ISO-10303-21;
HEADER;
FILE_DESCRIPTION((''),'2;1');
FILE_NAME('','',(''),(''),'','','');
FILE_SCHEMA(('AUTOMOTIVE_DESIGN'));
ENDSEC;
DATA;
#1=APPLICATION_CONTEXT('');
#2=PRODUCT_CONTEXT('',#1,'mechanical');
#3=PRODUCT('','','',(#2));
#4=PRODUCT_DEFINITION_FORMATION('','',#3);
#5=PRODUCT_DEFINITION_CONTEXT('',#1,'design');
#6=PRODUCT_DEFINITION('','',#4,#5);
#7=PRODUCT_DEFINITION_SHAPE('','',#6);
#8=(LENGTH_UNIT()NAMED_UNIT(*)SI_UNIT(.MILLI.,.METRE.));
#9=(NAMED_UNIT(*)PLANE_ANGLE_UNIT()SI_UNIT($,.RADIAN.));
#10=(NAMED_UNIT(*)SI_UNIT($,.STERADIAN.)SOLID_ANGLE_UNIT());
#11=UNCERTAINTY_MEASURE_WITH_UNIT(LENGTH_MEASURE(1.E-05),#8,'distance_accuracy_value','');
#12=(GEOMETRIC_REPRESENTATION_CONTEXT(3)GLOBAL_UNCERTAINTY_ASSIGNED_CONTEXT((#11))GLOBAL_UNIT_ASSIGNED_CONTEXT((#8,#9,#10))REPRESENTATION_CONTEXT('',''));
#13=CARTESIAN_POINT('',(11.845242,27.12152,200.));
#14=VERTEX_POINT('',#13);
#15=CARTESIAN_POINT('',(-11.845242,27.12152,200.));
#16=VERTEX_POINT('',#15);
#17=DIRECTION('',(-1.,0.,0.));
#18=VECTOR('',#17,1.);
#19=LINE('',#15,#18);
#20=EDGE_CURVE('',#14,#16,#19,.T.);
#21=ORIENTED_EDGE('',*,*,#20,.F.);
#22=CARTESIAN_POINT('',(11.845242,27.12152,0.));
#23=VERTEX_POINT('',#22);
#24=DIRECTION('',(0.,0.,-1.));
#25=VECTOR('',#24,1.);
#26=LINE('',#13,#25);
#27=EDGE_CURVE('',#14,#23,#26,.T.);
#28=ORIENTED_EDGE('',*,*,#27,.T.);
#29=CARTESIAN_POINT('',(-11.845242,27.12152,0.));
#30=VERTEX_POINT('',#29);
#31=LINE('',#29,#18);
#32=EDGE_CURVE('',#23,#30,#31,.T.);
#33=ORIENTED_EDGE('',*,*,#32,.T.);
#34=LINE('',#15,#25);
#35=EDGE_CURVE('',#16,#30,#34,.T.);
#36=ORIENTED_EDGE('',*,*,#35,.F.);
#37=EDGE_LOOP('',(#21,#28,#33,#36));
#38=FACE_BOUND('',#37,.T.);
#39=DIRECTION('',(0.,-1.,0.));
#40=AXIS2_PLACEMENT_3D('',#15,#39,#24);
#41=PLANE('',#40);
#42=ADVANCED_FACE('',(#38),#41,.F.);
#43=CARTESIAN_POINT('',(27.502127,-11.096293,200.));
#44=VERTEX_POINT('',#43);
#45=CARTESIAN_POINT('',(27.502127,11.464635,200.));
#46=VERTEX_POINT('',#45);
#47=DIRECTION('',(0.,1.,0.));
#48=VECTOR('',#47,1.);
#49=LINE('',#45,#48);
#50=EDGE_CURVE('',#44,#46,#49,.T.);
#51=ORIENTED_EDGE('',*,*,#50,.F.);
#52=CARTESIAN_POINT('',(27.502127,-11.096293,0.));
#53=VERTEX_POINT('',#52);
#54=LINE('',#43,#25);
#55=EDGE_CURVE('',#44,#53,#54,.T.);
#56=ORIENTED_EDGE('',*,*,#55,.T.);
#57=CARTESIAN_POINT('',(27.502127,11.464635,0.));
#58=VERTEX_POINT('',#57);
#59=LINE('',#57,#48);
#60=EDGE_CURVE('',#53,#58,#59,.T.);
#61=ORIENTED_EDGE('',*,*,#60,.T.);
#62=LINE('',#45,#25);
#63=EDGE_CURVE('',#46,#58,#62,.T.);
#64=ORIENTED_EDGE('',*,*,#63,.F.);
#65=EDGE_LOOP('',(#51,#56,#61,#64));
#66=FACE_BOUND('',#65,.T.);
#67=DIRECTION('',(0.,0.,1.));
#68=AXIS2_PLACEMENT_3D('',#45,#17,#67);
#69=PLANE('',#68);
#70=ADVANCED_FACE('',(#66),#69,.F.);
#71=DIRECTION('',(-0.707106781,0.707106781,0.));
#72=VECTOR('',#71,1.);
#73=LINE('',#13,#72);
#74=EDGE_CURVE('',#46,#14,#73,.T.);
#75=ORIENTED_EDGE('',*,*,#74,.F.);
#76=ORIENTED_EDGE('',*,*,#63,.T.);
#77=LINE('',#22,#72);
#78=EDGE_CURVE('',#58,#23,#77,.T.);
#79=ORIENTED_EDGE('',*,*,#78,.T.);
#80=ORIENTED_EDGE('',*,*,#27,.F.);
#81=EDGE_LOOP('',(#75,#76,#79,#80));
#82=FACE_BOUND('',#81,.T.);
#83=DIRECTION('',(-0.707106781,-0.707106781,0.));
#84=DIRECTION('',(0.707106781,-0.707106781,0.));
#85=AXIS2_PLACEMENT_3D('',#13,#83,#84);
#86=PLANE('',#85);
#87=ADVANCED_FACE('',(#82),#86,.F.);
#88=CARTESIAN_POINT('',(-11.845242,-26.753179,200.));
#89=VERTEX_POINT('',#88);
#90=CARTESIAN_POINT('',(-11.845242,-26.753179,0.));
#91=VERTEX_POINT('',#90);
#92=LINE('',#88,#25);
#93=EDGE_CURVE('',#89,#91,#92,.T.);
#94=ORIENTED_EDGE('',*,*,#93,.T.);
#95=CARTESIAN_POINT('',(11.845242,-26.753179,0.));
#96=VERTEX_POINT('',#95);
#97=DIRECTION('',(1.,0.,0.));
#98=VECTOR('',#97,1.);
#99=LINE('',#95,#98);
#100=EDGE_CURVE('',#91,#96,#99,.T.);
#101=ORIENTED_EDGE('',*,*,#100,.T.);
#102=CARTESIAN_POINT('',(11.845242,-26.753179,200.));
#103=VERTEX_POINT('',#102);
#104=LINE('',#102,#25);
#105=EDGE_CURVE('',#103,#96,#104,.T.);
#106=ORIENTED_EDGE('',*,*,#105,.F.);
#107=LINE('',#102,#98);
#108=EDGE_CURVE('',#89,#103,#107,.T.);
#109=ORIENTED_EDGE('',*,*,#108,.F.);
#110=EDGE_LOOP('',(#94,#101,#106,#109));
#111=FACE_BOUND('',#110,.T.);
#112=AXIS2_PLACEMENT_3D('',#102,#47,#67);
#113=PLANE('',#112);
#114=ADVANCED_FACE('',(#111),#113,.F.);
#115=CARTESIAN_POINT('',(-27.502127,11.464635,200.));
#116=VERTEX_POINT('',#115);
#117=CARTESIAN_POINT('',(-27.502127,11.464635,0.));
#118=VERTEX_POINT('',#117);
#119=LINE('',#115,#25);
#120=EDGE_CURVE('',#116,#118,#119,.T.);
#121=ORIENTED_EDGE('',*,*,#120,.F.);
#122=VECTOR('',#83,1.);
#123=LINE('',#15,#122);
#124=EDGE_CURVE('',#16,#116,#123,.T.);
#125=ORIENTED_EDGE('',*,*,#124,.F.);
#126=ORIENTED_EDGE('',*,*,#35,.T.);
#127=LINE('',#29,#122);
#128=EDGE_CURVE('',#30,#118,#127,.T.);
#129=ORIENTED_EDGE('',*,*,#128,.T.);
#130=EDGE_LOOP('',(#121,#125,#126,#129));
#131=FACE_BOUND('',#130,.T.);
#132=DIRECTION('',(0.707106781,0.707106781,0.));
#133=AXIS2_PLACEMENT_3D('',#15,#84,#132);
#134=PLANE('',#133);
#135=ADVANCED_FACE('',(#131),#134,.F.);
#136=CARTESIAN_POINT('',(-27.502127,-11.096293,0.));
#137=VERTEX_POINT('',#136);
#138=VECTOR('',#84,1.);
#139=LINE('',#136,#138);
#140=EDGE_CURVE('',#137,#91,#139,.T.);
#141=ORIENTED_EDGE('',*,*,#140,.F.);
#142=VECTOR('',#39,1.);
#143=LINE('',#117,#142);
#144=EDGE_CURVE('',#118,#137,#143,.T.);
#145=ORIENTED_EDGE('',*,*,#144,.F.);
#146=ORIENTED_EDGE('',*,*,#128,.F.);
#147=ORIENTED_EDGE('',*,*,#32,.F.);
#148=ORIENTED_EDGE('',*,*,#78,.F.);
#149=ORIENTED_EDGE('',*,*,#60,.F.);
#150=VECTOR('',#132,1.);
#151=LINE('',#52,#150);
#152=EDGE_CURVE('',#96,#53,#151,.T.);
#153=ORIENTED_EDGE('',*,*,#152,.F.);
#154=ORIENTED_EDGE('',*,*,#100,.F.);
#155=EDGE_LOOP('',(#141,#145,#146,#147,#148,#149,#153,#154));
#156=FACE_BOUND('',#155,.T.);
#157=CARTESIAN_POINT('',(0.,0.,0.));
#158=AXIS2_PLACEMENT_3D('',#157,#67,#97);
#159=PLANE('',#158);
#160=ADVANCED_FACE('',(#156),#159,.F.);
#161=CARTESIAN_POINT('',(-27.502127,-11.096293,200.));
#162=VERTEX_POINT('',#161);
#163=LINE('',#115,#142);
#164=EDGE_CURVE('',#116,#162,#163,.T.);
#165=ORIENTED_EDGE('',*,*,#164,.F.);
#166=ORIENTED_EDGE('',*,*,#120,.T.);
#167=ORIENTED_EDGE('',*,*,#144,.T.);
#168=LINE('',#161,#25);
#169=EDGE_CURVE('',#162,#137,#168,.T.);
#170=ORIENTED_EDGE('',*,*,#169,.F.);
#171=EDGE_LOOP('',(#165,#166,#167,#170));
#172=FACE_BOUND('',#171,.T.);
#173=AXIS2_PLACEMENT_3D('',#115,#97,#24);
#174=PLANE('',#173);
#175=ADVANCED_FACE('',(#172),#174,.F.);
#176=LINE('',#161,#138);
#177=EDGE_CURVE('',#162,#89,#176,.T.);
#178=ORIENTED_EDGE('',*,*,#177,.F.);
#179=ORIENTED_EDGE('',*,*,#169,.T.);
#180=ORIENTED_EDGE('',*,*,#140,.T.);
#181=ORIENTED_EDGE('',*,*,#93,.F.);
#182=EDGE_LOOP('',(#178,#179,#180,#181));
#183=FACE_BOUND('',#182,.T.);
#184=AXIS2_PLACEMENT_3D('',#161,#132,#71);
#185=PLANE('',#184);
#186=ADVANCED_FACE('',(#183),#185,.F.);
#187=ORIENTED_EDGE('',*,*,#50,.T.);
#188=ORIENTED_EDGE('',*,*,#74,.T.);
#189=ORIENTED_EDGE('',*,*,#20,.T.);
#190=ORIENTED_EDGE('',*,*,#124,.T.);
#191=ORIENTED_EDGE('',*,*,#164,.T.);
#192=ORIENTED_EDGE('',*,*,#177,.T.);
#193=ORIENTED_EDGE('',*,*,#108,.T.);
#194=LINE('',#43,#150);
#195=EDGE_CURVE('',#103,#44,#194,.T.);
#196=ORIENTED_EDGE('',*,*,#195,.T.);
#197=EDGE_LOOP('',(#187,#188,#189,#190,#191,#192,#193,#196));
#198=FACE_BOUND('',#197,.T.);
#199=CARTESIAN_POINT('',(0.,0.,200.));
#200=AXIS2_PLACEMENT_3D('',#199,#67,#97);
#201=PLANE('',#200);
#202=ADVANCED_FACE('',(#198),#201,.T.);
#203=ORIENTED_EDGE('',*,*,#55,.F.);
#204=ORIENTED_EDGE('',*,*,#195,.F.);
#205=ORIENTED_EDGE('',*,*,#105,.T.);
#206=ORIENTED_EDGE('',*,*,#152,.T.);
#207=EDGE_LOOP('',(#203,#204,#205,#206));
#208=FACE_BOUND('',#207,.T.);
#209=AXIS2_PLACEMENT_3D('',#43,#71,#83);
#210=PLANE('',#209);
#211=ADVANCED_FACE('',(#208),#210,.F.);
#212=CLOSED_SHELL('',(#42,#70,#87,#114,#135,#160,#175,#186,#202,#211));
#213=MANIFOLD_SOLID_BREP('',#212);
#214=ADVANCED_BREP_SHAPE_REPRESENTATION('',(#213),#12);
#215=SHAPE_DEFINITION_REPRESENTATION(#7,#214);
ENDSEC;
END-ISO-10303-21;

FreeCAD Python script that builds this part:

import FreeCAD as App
import Part
import Sketcher

V = App.Vector
Q = App.Units.Quantity

doc = App.newDocument("Part")
params = doc.addObject("Spreadsheet::Sheet", "Params")
for row, (alias, value) in enumerate([
    ("pad1_length", "200 mm"),
], start=1):
    params.set(f"A{row}", alias)
    params.set(f"B{row}", "=" + value)
    params.setAlias(f"B{row}", alias)

body = doc.addObject("PartDesign::Body", "Body")

sketch1 = body.newObject("Sketcher::SketchObject", "Sketch")
sketch1.AttachmentSupport = (doc.getObject("XY_Plane"), [""])
sketch1.MapMode = "FlatFace"
sketch1.addGeometry([
    Part.LineSegment(V(12, 27, 0), V(-12, 27, 0)),
    Part.LineSegment(V(-12, 27, 0), V(-28, 11, 0)),
    Part.LineSegment(V(-28, 11, 0), V(-28, -11, 0)),
    Part.LineSegment(V(-28, -11, 0), V(-12, -27, 0)),
    Part.LineSegment(V(-12, -27, 0), V(12, -27, 0)),
    Part.LineSegment(V(12, -27, 0), V(28, -11, 0)),
    Part.LineSegment(V(28, -11, 0), V(28, 11, 0)),
    Part.LineSegment(V(28, 11, 0), V(12, 27, 0)),
], False)
sketch1.addConstraint([
    Sketcher.Constraint("Coincident", 0, 2, 1, 1),
    Sketcher.Constraint("Coincident", 1, 2, 2, 1),
    Sketcher.Constraint("Coincident", 2, 2, 3, 1),
    Sketcher.Constraint("Coincident", 3, 2, 4, 1),
    Sketcher.Constraint("Coincident", 4, 2, 5, 1),
    Sketcher.Constraint("Coincident", 5, 2, 6, 1),
    Sketcher.Constraint("Coincident", 6, 2, 7, 1),
    Sketcher.Constraint("Coincident", 7, 2, 0, 1),
    Sketcher.Constraint("Horizontal", 0),
    Sketcher.Constraint("Vertical", 2),
    Sketcher.Constraint("Horizontal", 4),
    Sketcher.Constraint("Vertical", 6),
    Sketcher.Constraint("Symmetric", 2, 2, 5, 2, -2),
    Sketcher.Constraint("Perpendicular", 1, 3),
    Sketcher.Constraint("Perpendicular", 3, 5),
    Sketcher.Constraint("Perpendicular", 5, 7),
    Sketcher.Constraint("Horizontal", 1, 2, 6, 2),
    Sketcher.Constraint("Vertical", 0, 2, 3, 2),
    Sketcher.Constraint("Vertical", 4, 2, 7, 2),
    Sketcher.Constraint("DistanceY", 2, 2, 2, 1, Q("22.560928 mm")),
    Sketcher.Constraint("DistanceY", 3, 2, 0, 2, Q("53.874699 mm")),
    Sketcher.Constraint("DistanceX", 0, 2, 0, 1, Q("23.690483 mm")),
    Sketcher.Constraint("DistanceY", -1, 1, 0, 2, Q("27.12152 mm")),
])
pad1 = body.newObject("PartDesign::Pad", "Pad")
pad1.Profile = sketch1
pad1.setExpression("Length", "Params.pad1_length")

doc.recompute()
